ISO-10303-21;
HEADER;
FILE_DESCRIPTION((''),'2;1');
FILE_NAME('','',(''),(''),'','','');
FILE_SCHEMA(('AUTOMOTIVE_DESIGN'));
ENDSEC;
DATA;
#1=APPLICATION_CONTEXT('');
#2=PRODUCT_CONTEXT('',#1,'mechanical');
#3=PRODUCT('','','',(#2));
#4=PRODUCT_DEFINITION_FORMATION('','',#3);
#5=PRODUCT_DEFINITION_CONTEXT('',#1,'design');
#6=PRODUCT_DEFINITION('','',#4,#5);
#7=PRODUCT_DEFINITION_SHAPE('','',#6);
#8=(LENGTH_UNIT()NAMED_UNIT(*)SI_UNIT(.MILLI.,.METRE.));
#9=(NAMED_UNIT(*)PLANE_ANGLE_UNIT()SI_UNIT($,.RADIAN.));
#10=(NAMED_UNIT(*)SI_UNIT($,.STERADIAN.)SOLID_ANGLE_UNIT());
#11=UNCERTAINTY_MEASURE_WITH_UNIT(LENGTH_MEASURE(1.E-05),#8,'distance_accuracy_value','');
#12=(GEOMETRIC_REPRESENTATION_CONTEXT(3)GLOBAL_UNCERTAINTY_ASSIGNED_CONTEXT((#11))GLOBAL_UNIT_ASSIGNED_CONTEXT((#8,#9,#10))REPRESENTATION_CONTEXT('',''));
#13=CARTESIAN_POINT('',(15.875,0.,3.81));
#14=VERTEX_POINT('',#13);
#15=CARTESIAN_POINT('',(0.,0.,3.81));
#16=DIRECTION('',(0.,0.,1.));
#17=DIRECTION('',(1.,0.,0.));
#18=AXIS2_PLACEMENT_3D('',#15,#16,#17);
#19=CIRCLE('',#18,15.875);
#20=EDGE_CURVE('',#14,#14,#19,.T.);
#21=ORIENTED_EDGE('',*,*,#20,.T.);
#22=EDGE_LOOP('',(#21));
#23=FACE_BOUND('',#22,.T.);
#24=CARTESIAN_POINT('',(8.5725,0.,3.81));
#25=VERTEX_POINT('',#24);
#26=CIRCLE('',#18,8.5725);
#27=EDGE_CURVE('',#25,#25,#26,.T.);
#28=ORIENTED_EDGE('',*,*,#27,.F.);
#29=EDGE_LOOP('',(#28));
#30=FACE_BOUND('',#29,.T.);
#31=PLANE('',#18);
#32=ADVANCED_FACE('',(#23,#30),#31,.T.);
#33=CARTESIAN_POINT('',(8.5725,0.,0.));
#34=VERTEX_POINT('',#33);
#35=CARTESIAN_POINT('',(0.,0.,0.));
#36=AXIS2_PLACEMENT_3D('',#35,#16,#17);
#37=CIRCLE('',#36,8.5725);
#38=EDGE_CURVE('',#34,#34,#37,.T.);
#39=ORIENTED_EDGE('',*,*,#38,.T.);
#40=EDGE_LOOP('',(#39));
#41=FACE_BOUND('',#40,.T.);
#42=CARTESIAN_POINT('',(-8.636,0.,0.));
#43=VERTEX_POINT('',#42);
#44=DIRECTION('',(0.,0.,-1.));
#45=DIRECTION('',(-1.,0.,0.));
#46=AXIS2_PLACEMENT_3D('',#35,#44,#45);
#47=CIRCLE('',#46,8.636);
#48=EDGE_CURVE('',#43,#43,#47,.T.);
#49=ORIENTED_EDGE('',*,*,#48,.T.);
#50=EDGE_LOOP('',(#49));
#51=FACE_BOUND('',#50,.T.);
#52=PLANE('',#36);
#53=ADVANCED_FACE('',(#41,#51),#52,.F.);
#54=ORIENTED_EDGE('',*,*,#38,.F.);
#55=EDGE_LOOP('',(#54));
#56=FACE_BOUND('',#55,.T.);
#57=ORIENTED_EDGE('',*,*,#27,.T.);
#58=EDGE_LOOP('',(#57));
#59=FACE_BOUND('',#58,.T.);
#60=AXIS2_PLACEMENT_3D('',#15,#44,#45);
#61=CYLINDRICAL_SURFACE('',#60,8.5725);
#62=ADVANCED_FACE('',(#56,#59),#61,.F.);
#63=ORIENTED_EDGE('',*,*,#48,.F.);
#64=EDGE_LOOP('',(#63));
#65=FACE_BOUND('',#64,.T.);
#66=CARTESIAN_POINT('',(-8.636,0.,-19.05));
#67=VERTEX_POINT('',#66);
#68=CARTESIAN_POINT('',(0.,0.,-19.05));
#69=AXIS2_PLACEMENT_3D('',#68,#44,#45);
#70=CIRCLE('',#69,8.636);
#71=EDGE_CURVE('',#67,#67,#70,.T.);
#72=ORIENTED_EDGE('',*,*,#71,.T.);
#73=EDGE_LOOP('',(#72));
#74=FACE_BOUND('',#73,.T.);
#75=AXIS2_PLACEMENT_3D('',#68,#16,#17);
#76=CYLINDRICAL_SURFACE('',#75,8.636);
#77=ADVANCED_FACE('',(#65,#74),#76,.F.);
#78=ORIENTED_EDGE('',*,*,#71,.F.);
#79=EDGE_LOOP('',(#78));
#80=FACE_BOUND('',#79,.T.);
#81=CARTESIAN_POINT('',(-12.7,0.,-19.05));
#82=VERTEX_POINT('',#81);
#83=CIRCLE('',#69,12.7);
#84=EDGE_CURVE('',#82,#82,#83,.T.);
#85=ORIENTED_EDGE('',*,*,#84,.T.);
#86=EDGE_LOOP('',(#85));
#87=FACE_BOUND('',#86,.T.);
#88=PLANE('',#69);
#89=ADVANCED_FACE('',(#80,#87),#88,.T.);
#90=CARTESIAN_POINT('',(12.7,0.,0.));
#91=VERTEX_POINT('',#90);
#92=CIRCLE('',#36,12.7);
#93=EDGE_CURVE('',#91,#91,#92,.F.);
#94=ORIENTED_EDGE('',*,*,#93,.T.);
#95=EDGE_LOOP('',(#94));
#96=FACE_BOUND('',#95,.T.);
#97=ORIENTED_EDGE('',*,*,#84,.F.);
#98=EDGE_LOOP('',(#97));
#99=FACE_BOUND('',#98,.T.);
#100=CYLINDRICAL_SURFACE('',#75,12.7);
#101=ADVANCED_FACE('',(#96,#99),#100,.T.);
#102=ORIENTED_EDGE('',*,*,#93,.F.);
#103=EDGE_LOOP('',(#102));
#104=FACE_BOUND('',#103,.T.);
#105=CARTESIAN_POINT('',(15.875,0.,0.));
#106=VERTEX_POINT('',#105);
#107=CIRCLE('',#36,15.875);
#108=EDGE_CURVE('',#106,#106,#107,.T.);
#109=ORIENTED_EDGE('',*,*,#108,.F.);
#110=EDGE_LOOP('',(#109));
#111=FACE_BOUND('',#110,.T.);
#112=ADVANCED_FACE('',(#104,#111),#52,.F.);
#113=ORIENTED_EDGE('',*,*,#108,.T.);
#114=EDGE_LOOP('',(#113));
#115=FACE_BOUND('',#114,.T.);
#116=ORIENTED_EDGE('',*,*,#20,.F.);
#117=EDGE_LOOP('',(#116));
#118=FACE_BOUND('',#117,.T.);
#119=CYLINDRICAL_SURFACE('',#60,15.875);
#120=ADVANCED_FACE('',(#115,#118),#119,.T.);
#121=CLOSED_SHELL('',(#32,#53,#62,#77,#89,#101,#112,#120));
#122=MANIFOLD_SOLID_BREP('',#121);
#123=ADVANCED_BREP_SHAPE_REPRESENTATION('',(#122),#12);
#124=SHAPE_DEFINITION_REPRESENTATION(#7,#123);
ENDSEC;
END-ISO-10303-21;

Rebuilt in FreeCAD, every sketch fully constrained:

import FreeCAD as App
import Part
import Sketcher

V = App.Vector
Q = App.Units.Quantity

doc = App.newDocument("Part")
body = doc.addObject("PartDesign::Body", "Body")

# Sketch on XY plane
sketch1 = doc.addObject("Sketcher::SketchObject", "Sketch")
body.addObject(sketch1)
sketch1.AttachmentSupport = (doc.XY_Plane, [""])
sketch1.MapMode = "FlatFace"
sketch1.addGeometry(Part.Circle(V(0, 0, 0), V(0, 0, 1), 15.875), False)
sketch1.addGeometry(Part.Circle(V(0, 0, 0), V(0, 0, 1), 8.5725), False)
sketch1.addConstraint(Sketcher.Constraint("Coincident", 0, 3, -1, 1))
sketch1.addConstraint(Sketcher.Constraint("Coincident", 1, 3, -1, 1))
sketch1.addConstraint(Sketcher.Constraint("Diameter", 0, Q("1.25 in")))
sketch1.addConstraint(Sketcher.Constraint("Diameter", 1, Q("0.675 in")))
pad1 = doc.addObject("PartDesign::Pad", "Pad")
body.addObject(pad1)
pad1.Profile = sketch1
pad1.Length = Q("0.15 in")

# Sketch on XY plane
sketch2 = doc.addObject("Sketcher::SketchObject", "Sketch001")
body.addObject(sketch2)
sketch2.AttachmentSupport = (doc.XY_Plane, [""])
sketch2.MapMode = "FlatFace"
sketch2.addGeometry(Part.Circle(V(0, 0, 0), V(0, 0, 1), 12.7), False)
sketch2.addGeometry(Part.Circle(V(0, 0, 0), V(0, 0, 1), 8.636), False)
sketch2.addConstraint(Sketcher.Constraint("Coincident", 0, 3, -1, 1))
sketch2.addConstraint(Sketcher.Constraint("Coincident", 1, 3, -1, 1))
sketch2.addConstraint(Sketcher.Constraint("Diameter", 0, Q("1 in")))
sketch2.addConstraint(Sketcher.Constraint("Diameter", 1, Q("0.68 in")))
pad2 = doc.addObject("PartDesign::Pad", "Pad001")
body.addObject(pad2)
pad2.Profile = sketch2
pad2.Length = Q("0.75 in")
pad2.Reversed = True

doc.recompute()
